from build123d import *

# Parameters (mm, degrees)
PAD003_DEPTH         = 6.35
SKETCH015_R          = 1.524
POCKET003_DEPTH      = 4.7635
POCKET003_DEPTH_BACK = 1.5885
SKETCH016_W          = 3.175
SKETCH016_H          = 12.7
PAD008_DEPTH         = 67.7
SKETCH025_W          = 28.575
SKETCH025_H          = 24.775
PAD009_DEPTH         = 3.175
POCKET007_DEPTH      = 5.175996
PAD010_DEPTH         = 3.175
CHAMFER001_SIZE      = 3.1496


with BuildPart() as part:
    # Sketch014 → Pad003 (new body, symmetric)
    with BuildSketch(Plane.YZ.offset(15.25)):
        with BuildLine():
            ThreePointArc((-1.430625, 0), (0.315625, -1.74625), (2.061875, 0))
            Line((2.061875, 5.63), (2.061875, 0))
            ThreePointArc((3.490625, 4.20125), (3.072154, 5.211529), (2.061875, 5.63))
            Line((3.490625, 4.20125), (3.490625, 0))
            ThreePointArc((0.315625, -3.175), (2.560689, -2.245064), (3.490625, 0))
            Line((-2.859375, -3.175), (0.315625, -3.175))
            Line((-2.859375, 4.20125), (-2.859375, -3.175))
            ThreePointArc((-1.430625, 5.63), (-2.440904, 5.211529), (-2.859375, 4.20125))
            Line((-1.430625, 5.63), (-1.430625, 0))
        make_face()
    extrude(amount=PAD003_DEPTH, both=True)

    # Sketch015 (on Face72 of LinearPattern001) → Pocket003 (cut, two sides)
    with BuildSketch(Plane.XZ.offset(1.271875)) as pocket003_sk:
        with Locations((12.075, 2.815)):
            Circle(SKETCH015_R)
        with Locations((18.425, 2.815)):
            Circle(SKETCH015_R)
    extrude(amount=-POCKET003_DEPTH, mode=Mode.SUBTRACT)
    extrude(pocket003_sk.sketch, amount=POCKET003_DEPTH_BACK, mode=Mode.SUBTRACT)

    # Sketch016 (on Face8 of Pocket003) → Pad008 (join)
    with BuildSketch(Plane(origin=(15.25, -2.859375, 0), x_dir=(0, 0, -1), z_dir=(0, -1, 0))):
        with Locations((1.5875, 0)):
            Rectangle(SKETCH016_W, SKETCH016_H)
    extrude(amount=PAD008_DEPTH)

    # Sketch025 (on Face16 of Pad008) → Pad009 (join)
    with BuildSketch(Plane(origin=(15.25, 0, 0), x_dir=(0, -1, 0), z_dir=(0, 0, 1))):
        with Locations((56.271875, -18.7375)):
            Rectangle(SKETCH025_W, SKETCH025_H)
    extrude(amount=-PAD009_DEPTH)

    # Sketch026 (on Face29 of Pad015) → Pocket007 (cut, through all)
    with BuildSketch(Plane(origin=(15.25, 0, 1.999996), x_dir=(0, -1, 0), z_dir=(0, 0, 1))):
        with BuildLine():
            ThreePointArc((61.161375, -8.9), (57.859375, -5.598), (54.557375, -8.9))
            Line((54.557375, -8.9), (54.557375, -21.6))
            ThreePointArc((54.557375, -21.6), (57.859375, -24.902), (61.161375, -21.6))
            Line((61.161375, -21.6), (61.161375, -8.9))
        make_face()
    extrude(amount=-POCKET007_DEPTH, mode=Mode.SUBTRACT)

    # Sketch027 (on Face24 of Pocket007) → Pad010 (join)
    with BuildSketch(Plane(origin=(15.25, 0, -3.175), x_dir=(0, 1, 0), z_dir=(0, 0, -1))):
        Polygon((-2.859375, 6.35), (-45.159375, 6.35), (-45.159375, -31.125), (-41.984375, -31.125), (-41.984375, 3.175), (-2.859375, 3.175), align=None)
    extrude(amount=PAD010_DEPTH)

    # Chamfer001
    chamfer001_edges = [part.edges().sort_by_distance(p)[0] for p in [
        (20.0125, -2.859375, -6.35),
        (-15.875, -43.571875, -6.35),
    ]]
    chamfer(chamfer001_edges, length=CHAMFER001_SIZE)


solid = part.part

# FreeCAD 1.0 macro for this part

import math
import FreeCAD as App
import Part
import Sketcher
from FreeCAD import Vector
Q = App.Units.Quantity


def edges_at(feature, points):
    """Names of the edges that pass closest to the given points."""
    edges = feature.Shape.Edges
    near = lambda p: min(range(len(edges)), key=lambda i: edges[i].distToShape(Part.Vertex(*p))[0])
    return sorted({f"Edge{near(p) + 1}" for p in points})


def add_polygon(sketch, points):
    """Adds a closed chain of lines whose ends are joined by coincident constraints."""
    first, n = sketch.GeometryCount, len(points)
    for a, b in zip(points, points[1:] + points[:1]):
        sketch.addGeometry(Part.LineSegment(App.Vector(*a, 0), App.Vector(*b, 0)), False)
    for i in range(n):
        sketch.addConstraint(Sketcher.Constraint("Coincident", first + i, 2, first + (i + 1) % n, 1))

doc = App.newDocument("Part")
body = doc.addObject("PartDesign::Body", "Body")

sketch1 = doc.addObject("Sketcher::SketchObject", "Sketch")
body.addObject(sketch1)
sketch1.AttachmentSupport = (doc.YZ_Plane, [""])
sketch1.MapMode = "FlatFace"
sketch1.AttachmentOffset = App.Placement(Vector(0, 0, 15.25), App.Rotation())
sketch1.addGeometry(Part.ArcOfCircle(Part.Circle(Vector(0.3, 0, 0), Vector(0, 0, 1), 1.7), math.radians(180), math.radians(360)), False)
sketch1.addGeometry(Part.LineSegment(Vector(-1.4, 0, 0), Vector(-1.4, 5.6, 0)), False)
sketch1.addGeometry(Part.ArcOfCircle(Part.Circle(Vector(-1.4, 4.2, 0), Vector(0, 0, 1), 1.4), math.radians(90), math.radians(180)), False)
sketch1.addGeometry(Part.LineSegment(Vector(-2.9, 4.2, 0), Vector(-2.9, -3.2, 0)), False)
sketch1.addGeometry(Part.LineSegment(Vector(-2.9, -3.2, 0), Vector(0.3, -3.2, 0)), False)
sketch1.addGeometry(Part.ArcOfCircle(Part.Circle(Vector(0.3, 0, 0), Vector(0, 0, 1), 3.2), math.radians(-90), math.radians(0)), False)
sketch1.addGeometry(Part.LineSegment(Vector(3.5, 0, 0), Vector(3.5, 4.2, 0)), False)
sketch1.addGeometry(Part.ArcOfCircle(Part.Circle(Vector(2.1, 4.2, 0), Vector(0, 0, 1), 1.4), math.radians(0), math.radians(90)), False)
sketch1.addGeometry(Part.LineSegment(Vector(2.1, 5.6, 0), Vector(2.1, 0, 0)), False)
sketch1.addConstraint(Sketcher.Constraint("Tangent", 0, 1, 1, 1))
sketch1.addConstraint(Sketcher.Constraint("Coincident", 1, 2, 2, 1))
sketch1.addConstraint(Sketcher.Constraint("Tangent", 2, 2, 3, 1))
sketch1.addConstraint(Sketcher.Constraint("Coincident", 3, 2, 4, 1))
sketch1.addConstraint(Sketcher.Constraint("Tangent", 4, 2, 5, 1))
sketch1.addConstraint(Sketcher.Constraint("Tangent", 5, 2, 6, 1))
sketch1.addConstraint(Sketcher.Constraint("Tangent", 6, 2, 7, 1))
sketch1.addConstraint(Sketcher.Constraint("Coincident", 7, 2, 8, 1))
sketch1.addConstraint(Sketcher.Constraint("Tangent", 8, 2, 0, 2))
sketch1.addConstraint(Sketcher.Constraint("Vertical", 1))
sketch1.addConstraint(Sketcher.Constraint("Vertical", 3))
sketch1.addConstraint(Sketcher.Constraint("Horizontal", 4))
sketch1.addConstraint(Sketcher.Constraint("Vertical", 6))
sketch1.addConstraint(Sketcher.Constraint("Vertical", 8))
sketch1.addConstraint(Sketcher.Constraint("Coincident", 5, 3, 0, 3))
sketch1.addConstraint(Sketcher.Constraint("Equal", 2, 7))
sketch1.addConstraint(Sketcher.Constraint("PointOnObject", 0, 3, -1))
sketch1.addConstraint(Sketcher.Constraint("Horizontal", 2, 3, 7, 3))
sketch1.addConstraint(Sketcher.Constraint("Vertical", 2, 3, 0, 1))
sketch1.addConstraint(Sketcher.Constraint("Radius", 5, Q("0.125 in")))
sketch1.addConstraint(Sketcher.Constraint("DistanceX", 4, 1, 4, 2, Q("0.125 in")))
sketch1.addConstraint(Sketcher.Constraint("Radius", 0, Q("1.74625 mm")))
sketch1.addConstraint(Sketcher.Constraint("DistanceY", 1, 1, 1, 2, Q("5.63 mm")))
sketch1.addConstraint(Sketcher.Constraint("DistanceX", -1, 1, 0, 3, Q("0.315625 mm")))
pad1 = doc.addObject("PartDesign::Pad", "Pad")
body.addObject(pad1)
pad1.Profile = sketch1
pad1.Length = Q("0.5 in")
pad1.Midplane = True

sketch2 = doc.addObject("Sketcher::SketchObject", "Sketch001")
body.addObject(sketch2)
sketch2.AttachmentSupport = (doc.XZ_Plane, [""])
sketch2.MapMode = "FlatFace"
sketch2.AttachmentOffset = App.Placement(Vector(0, 0, 1.271875), App.Rotation())
sketch2.addGeometry(Part.Circle(Vector(12.1, 2.8, 0), Vector(0, 0, 1), 1.5), False)
sketch2.addGeometry(Part.Circle(Vector(18.4, 2.8, 0), Vector(0, 0, 1), 1.5), False)
sketch2.addConstraint(Sketcher.Constraint("Equal", 0, 1))
sketch2.addConstraint(Sketcher.Constraint("Horizontal", 0, 3, 1, 3))
sketch2.addConstraint(Sketcher.Constraint("Diameter", 0, Q("0.12 in")))
sketch2.addConstraint(Sketcher.Constraint("DistanceX", 0, 3, 1, 3, Q("0.25 in")))
sketch2.addConstraint(Sketcher.Constraint("DistanceX", -1, 1, 0, 3, Q("12.075 mm")))
sketch2.addConstraint(Sketcher.Constraint("DistanceY", -1, 1, 0, 3, Q("2.815 mm")))
pocket1 = doc.addObject("PartDesign::Pocket", "Pocket")
body.addObject(pocket1)
pocket1.Profile = sketch2
pocket1.Type = "ThroughAll"
pocket1.Midplane = True

sketch3 = doc.addObject("Sketcher::SketchObject", "Sketch002")
body.addObject(sketch3)
sketch3.AttachmentSupport = (doc.XZ_Plane, [""])
sketch3.MapMode = "FlatFace"
sketch3.AttachmentOffset = App.Placement(Vector(0, 0, 2.859375), App.Rotation())
add_polygon(sketch3, [(21.6, 0), (8.9, 0), (8.9, -3.2), (21.6, -3.2)])
sketch3.addConstraint(Sketcher.Constraint("Horizontal", 0))
sketch3.addConstraint(Sketcher.Constraint("Vertical", 1))
sketch3.addConstraint(Sketcher.Constraint("Horizontal", 2))
sketch3.addConstraint(Sketcher.Constraint("Vertical", 3))
sketch3.addConstraint(Sketcher.Constraint("PointOnObject", 0, 2, -1))
sketch3.addConstraint(Sketcher.Constraint("DistanceX", 0, 2, 0, 1, Q("0.5 in")))
sketch3.addConstraint(Sketcher.Constraint("DistanceY", 1, 2, 1, 1, Q("0.125 in")))
sketch3.addConstraint(Sketcher.Constraint("DistanceX", -1, 1, 0, 2, Q("8.9 mm")))
pad2 = doc.addObject("PartDesign::Pad", "Pad001")
body.addObject(pad2)
pad2.Profile = sketch3
pad2.Length = 67.7

sketch4 = doc.addObject("Sketcher::SketchObject", "Sketch003")
body.addObject(sketch4)
sketch4.AttachmentSupport = (doc.XY_Plane, [""])
sketch4.MapMode = "FlatFace"
add_polygon(sketch4, [(9, -42), (-16, -42), (-16, -71), (9, -71)])
sketch4.addConstraint(Sketcher.Constraint("Horizontal", 0))
sketch4.addConstraint(Sketcher.Constraint("Vertical", 1))
sketch4.addConstraint(Sketcher.Constraint("Horizontal", 2))
sketch4.addConstraint(Sketcher.Constraint("Vertical", 3))
sketch4.addConstraint(Sketcher.Constraint("DistanceY", 1, 2, 1, 1, Q("1.125 in")))
sketch4.addConstraint(Sketcher.Constraint("DistanceX", 0, 2, -1, 1, Q("0.625 in")))
sketch4.addConstraint(Sketcher.Constraint("DistanceX", 0, 2, 0, 1, Q("24.775 mm")))
sketch4.addConstraint(Sketcher.Constraint("DistanceY", 0, 2, -1, 1, Q("41.984375 mm")))
pad3 = doc.addObject("PartDesign::Pad", "Pad002")
body.addObject(pad3)
pad3.Profile = sketch4
pad3.Length = Q("0.125 in")
pad3.Reversed = True

sketch5 = doc.addObject("Sketcher::SketchObject", "Sketch004")
body.addObject(sketch5)
sketch5.AttachmentSupport = (doc.XY_Plane, [""])
sketch5.MapMode = "FlatFace"
sketch5.AttachmentOffset = App.Placement(Vector(0, 0, 1.999996), App.Rotation())
sketch5.addGeometry(Part.ArcOfCircle(Part.Circle(Vector(6.3, -57.9, 0), Vector(0, 0, 1), 3.3), math.radians(-90), math.radians(90)), False)
sketch5.addGeometry(Part.LineSegment(Vector(6.3, -54.6, 0), Vector(-6.3, -54.6, 0)), False)
sketch5.addGeometry(Part.ArcOfCircle(Part.Circle(Vector(-6.3, -57.9, 0), Vector(0, 0, 1), 3.3), math.radians(90), math.radians(270)), False)
sketch5.addGeometry(Part.LineSegment(Vector(-6.3, -61.2, 0), Vector(6.3, -61.2, 0)), False)
sketch5.addConstraint(Sketcher.Constraint("Tangent", 0, 2, 1, 1))
sketch5.addConstraint(Sketcher.Constraint("Tangent", 1, 2, 2, 1))
sketch5.addConstraint(Sketcher.Constraint("Tangent", 2, 2, 3, 1))
sketch5.addConstraint(Sketcher.Constraint("Tangent", 3, 2, 0, 1))
sketch5.addConstraint(Sketcher.Constraint("Horizontal", 1))
sketch5.addConstraint(Sketcher.Constraint("Horizontal", 3))
sketch5.addConstraint(Sketcher.Constraint("Radius", 0, Q("0.13 in")))
sketch5.addConstraint(Sketcher.Constraint("DistanceX", 1, 2, 1, 1, Q("0.5 in")))
sketch5.addConstraint(Sketcher.Constraint("DistanceX", -1, 1, 0, 3, Q("0.25 in")))
sketch5.addConstraint(Sketcher.Constraint("DistanceY", 0, 3, -1, 1, Q("57.859375 mm")))
pocket2 = doc.addObject("PartDesign::Pocket", "Pocket001")
body.addObject(pocket2)
pocket2.Profile = sketch5
pocket2.Type = "ThroughAll"

sketch6 = doc.addObject("Sketcher::SketchObject", "Sketch005")
body.addObject(sketch6)
sketch6.AttachmentSupport = (doc.XY_Plane, [""])
sketch6.MapMode = "FlatFace"
sketch6.AttachmentOffset = App.Placement(Vector(0, 0, -0.125 * 25.4), App.Rotation())
add_polygon(sketch6, [(21.6, -2.9), (21.6, -45.2), (-15.9, -45.2), (-15.9, -42), (18.4, -42), (18.4, -2.9)])
sketch6.addConstraint(Sketcher.Constraint("Vertical", 0))
sketch6.addConstraint(Sketcher.Constraint("Horizontal", 1))
sketch6.addConstraint(Sketcher.Constraint("Vertical", 2))
sketch6.addConstraint(Sketcher.Constraint("Horizontal", 3))
sketch6.addConstraint(Sketcher.Constraint("Vertical", 4))
sketch6.addConstraint(Sketcher.Constraint("Horizontal", 5))
sketch6.addConstraint(Sketcher.Constraint("Equal", 5, 2))
sketch6.addConstraint(Sketcher.Constraint("DistanceX", 5, 1, 5, 2, Q("0.125 in")))
sketch6.addConstraint(Sketcher.Constraint("DistanceX", 1, 2, -1, 1, Q("0.625 in")))
sketch6.addConstraint(Sketcher.Constraint("DistanceX", 1, 2, 1, 1, Q("37.475 mm")))
sketch6.addConstraint(Sketcher.Constraint("DistanceY", 0, 2, 0, 1, Q("42.3 mm")))
sketch6.addConstraint(Sketcher.Constraint("DistanceY", 0, 2, -1, 1, Q("45.159375 mm")))
pad4 = doc.addObject("PartDesign::Pad", "Pad003")
body.addObject(pad4)
pad4.Profile = sketch6
pad4.Length = Q("0.125 in")
pad4.Reversed = True
doc.recompute()

chamfer = doc.addObject("PartDesign::Chamfer", "Chamfer")
body.addObject(chamfer)
chamfer.Base = (pad4, edges_at(pad4, [(20.012, -2.859, -6.35), (-15.875, -43.572, -6.35)]))
chamfer.Size = Q("0.124 in")

doc.recompute()
